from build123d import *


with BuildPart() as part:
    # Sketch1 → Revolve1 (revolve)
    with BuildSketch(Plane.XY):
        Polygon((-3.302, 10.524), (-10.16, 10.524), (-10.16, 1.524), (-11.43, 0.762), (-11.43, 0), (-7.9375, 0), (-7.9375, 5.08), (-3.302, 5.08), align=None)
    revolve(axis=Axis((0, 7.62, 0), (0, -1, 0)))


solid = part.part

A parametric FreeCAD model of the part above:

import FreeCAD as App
import Part
import Sketcher
from FreeCAD import Vector
Q = App.Units.Quantity


def add_polygon(sketch, points):
    """Adds a closed chain of lines whose ends are joined by coincident constraints."""
    first, n = sketch.GeometryCount, len(points)
    for a, b in zip(points, points[1:] + points[:1]):
        sketch.addGeometry(Part.LineSegment(App.Vector(*a, 0), App.Vector(*b, 0)), False)
    for i in range(n):
        sketch.addConstraint(Sketcher.Constraint("Coincident", first + i, 2, first + (i + 1) % n, 1))

doc = App.newDocument("Part")
body = doc.addObject("PartDesign::Body", "Body")

# Sketch on XY plane
sketch1 = doc.addObject("Sketcher::SketchObject", "Sketch")
body.addObject(sketch1)
sketch1.AttachmentSupport = (doc.XY_Plane, [""])
sketch1.MapMode = "FlatFace"
add_polygon(sketch1, [(-3.3, 10.5), (-10.2, 10.5), (-10.2, 1.5), (-11.4, 0.8), (-11.4, 0), (-7.9, 0), (-7.9, 5.1), (-3.3, 5.1)])  # lines 0-7
sketch1.addConstraint([
    Sketcher.Constraint("Horizontal", 0),
    Sketcher.Constraint("Vertical", 1),
    Sketcher.Constraint("Vertical", 3),
    Sketcher.Constraint("Horizontal", 4),
    Sketcher.Constraint("Vertical", 5),
    Sketcher.Constraint("Horizontal", 6),
    Sketcher.Constraint("Vertical", 7),
    Sketcher.Constraint("PointOnObject", 3, 2, -1),
    Sketcher.Constraint("DistanceY", 5, 1, 5, 2, Q("0.2 in")),
    Sketcher.Constraint("DistanceX", 0, 2, 0, 1, Q("0.27 in")),
    Sketcher.Constraint("DistanceY", 3, 2, 3, 1, Q("0.03 in")),
    Sketcher.Constraint("DistanceX", 0, 2, -1, 1, Q("0.4 in")),
    Sketcher.Constraint("DistanceY", -1, 1, 1, 2, Q("0.06 in")),
    Sketcher.Constraint("DistanceX", 2, 2, -1, 1, Q("0.45 in")),
    Sketcher.Constraint("DistanceX", 4, 1, 4, 2, Q("0.1375 in")),
    Sketcher.Constraint("DistanceY", 1, 2, 1, 1, Q("9 mm")),
])
revolution = doc.addObject("PartDesign::Revolution", "Revolution")
body.addObject(revolution)
revolution.Profile = sketch1
revolution.ReferenceAxis = (sketch1, ["V_Axis"])
revolution.Angle = 360

doc.recompute()
